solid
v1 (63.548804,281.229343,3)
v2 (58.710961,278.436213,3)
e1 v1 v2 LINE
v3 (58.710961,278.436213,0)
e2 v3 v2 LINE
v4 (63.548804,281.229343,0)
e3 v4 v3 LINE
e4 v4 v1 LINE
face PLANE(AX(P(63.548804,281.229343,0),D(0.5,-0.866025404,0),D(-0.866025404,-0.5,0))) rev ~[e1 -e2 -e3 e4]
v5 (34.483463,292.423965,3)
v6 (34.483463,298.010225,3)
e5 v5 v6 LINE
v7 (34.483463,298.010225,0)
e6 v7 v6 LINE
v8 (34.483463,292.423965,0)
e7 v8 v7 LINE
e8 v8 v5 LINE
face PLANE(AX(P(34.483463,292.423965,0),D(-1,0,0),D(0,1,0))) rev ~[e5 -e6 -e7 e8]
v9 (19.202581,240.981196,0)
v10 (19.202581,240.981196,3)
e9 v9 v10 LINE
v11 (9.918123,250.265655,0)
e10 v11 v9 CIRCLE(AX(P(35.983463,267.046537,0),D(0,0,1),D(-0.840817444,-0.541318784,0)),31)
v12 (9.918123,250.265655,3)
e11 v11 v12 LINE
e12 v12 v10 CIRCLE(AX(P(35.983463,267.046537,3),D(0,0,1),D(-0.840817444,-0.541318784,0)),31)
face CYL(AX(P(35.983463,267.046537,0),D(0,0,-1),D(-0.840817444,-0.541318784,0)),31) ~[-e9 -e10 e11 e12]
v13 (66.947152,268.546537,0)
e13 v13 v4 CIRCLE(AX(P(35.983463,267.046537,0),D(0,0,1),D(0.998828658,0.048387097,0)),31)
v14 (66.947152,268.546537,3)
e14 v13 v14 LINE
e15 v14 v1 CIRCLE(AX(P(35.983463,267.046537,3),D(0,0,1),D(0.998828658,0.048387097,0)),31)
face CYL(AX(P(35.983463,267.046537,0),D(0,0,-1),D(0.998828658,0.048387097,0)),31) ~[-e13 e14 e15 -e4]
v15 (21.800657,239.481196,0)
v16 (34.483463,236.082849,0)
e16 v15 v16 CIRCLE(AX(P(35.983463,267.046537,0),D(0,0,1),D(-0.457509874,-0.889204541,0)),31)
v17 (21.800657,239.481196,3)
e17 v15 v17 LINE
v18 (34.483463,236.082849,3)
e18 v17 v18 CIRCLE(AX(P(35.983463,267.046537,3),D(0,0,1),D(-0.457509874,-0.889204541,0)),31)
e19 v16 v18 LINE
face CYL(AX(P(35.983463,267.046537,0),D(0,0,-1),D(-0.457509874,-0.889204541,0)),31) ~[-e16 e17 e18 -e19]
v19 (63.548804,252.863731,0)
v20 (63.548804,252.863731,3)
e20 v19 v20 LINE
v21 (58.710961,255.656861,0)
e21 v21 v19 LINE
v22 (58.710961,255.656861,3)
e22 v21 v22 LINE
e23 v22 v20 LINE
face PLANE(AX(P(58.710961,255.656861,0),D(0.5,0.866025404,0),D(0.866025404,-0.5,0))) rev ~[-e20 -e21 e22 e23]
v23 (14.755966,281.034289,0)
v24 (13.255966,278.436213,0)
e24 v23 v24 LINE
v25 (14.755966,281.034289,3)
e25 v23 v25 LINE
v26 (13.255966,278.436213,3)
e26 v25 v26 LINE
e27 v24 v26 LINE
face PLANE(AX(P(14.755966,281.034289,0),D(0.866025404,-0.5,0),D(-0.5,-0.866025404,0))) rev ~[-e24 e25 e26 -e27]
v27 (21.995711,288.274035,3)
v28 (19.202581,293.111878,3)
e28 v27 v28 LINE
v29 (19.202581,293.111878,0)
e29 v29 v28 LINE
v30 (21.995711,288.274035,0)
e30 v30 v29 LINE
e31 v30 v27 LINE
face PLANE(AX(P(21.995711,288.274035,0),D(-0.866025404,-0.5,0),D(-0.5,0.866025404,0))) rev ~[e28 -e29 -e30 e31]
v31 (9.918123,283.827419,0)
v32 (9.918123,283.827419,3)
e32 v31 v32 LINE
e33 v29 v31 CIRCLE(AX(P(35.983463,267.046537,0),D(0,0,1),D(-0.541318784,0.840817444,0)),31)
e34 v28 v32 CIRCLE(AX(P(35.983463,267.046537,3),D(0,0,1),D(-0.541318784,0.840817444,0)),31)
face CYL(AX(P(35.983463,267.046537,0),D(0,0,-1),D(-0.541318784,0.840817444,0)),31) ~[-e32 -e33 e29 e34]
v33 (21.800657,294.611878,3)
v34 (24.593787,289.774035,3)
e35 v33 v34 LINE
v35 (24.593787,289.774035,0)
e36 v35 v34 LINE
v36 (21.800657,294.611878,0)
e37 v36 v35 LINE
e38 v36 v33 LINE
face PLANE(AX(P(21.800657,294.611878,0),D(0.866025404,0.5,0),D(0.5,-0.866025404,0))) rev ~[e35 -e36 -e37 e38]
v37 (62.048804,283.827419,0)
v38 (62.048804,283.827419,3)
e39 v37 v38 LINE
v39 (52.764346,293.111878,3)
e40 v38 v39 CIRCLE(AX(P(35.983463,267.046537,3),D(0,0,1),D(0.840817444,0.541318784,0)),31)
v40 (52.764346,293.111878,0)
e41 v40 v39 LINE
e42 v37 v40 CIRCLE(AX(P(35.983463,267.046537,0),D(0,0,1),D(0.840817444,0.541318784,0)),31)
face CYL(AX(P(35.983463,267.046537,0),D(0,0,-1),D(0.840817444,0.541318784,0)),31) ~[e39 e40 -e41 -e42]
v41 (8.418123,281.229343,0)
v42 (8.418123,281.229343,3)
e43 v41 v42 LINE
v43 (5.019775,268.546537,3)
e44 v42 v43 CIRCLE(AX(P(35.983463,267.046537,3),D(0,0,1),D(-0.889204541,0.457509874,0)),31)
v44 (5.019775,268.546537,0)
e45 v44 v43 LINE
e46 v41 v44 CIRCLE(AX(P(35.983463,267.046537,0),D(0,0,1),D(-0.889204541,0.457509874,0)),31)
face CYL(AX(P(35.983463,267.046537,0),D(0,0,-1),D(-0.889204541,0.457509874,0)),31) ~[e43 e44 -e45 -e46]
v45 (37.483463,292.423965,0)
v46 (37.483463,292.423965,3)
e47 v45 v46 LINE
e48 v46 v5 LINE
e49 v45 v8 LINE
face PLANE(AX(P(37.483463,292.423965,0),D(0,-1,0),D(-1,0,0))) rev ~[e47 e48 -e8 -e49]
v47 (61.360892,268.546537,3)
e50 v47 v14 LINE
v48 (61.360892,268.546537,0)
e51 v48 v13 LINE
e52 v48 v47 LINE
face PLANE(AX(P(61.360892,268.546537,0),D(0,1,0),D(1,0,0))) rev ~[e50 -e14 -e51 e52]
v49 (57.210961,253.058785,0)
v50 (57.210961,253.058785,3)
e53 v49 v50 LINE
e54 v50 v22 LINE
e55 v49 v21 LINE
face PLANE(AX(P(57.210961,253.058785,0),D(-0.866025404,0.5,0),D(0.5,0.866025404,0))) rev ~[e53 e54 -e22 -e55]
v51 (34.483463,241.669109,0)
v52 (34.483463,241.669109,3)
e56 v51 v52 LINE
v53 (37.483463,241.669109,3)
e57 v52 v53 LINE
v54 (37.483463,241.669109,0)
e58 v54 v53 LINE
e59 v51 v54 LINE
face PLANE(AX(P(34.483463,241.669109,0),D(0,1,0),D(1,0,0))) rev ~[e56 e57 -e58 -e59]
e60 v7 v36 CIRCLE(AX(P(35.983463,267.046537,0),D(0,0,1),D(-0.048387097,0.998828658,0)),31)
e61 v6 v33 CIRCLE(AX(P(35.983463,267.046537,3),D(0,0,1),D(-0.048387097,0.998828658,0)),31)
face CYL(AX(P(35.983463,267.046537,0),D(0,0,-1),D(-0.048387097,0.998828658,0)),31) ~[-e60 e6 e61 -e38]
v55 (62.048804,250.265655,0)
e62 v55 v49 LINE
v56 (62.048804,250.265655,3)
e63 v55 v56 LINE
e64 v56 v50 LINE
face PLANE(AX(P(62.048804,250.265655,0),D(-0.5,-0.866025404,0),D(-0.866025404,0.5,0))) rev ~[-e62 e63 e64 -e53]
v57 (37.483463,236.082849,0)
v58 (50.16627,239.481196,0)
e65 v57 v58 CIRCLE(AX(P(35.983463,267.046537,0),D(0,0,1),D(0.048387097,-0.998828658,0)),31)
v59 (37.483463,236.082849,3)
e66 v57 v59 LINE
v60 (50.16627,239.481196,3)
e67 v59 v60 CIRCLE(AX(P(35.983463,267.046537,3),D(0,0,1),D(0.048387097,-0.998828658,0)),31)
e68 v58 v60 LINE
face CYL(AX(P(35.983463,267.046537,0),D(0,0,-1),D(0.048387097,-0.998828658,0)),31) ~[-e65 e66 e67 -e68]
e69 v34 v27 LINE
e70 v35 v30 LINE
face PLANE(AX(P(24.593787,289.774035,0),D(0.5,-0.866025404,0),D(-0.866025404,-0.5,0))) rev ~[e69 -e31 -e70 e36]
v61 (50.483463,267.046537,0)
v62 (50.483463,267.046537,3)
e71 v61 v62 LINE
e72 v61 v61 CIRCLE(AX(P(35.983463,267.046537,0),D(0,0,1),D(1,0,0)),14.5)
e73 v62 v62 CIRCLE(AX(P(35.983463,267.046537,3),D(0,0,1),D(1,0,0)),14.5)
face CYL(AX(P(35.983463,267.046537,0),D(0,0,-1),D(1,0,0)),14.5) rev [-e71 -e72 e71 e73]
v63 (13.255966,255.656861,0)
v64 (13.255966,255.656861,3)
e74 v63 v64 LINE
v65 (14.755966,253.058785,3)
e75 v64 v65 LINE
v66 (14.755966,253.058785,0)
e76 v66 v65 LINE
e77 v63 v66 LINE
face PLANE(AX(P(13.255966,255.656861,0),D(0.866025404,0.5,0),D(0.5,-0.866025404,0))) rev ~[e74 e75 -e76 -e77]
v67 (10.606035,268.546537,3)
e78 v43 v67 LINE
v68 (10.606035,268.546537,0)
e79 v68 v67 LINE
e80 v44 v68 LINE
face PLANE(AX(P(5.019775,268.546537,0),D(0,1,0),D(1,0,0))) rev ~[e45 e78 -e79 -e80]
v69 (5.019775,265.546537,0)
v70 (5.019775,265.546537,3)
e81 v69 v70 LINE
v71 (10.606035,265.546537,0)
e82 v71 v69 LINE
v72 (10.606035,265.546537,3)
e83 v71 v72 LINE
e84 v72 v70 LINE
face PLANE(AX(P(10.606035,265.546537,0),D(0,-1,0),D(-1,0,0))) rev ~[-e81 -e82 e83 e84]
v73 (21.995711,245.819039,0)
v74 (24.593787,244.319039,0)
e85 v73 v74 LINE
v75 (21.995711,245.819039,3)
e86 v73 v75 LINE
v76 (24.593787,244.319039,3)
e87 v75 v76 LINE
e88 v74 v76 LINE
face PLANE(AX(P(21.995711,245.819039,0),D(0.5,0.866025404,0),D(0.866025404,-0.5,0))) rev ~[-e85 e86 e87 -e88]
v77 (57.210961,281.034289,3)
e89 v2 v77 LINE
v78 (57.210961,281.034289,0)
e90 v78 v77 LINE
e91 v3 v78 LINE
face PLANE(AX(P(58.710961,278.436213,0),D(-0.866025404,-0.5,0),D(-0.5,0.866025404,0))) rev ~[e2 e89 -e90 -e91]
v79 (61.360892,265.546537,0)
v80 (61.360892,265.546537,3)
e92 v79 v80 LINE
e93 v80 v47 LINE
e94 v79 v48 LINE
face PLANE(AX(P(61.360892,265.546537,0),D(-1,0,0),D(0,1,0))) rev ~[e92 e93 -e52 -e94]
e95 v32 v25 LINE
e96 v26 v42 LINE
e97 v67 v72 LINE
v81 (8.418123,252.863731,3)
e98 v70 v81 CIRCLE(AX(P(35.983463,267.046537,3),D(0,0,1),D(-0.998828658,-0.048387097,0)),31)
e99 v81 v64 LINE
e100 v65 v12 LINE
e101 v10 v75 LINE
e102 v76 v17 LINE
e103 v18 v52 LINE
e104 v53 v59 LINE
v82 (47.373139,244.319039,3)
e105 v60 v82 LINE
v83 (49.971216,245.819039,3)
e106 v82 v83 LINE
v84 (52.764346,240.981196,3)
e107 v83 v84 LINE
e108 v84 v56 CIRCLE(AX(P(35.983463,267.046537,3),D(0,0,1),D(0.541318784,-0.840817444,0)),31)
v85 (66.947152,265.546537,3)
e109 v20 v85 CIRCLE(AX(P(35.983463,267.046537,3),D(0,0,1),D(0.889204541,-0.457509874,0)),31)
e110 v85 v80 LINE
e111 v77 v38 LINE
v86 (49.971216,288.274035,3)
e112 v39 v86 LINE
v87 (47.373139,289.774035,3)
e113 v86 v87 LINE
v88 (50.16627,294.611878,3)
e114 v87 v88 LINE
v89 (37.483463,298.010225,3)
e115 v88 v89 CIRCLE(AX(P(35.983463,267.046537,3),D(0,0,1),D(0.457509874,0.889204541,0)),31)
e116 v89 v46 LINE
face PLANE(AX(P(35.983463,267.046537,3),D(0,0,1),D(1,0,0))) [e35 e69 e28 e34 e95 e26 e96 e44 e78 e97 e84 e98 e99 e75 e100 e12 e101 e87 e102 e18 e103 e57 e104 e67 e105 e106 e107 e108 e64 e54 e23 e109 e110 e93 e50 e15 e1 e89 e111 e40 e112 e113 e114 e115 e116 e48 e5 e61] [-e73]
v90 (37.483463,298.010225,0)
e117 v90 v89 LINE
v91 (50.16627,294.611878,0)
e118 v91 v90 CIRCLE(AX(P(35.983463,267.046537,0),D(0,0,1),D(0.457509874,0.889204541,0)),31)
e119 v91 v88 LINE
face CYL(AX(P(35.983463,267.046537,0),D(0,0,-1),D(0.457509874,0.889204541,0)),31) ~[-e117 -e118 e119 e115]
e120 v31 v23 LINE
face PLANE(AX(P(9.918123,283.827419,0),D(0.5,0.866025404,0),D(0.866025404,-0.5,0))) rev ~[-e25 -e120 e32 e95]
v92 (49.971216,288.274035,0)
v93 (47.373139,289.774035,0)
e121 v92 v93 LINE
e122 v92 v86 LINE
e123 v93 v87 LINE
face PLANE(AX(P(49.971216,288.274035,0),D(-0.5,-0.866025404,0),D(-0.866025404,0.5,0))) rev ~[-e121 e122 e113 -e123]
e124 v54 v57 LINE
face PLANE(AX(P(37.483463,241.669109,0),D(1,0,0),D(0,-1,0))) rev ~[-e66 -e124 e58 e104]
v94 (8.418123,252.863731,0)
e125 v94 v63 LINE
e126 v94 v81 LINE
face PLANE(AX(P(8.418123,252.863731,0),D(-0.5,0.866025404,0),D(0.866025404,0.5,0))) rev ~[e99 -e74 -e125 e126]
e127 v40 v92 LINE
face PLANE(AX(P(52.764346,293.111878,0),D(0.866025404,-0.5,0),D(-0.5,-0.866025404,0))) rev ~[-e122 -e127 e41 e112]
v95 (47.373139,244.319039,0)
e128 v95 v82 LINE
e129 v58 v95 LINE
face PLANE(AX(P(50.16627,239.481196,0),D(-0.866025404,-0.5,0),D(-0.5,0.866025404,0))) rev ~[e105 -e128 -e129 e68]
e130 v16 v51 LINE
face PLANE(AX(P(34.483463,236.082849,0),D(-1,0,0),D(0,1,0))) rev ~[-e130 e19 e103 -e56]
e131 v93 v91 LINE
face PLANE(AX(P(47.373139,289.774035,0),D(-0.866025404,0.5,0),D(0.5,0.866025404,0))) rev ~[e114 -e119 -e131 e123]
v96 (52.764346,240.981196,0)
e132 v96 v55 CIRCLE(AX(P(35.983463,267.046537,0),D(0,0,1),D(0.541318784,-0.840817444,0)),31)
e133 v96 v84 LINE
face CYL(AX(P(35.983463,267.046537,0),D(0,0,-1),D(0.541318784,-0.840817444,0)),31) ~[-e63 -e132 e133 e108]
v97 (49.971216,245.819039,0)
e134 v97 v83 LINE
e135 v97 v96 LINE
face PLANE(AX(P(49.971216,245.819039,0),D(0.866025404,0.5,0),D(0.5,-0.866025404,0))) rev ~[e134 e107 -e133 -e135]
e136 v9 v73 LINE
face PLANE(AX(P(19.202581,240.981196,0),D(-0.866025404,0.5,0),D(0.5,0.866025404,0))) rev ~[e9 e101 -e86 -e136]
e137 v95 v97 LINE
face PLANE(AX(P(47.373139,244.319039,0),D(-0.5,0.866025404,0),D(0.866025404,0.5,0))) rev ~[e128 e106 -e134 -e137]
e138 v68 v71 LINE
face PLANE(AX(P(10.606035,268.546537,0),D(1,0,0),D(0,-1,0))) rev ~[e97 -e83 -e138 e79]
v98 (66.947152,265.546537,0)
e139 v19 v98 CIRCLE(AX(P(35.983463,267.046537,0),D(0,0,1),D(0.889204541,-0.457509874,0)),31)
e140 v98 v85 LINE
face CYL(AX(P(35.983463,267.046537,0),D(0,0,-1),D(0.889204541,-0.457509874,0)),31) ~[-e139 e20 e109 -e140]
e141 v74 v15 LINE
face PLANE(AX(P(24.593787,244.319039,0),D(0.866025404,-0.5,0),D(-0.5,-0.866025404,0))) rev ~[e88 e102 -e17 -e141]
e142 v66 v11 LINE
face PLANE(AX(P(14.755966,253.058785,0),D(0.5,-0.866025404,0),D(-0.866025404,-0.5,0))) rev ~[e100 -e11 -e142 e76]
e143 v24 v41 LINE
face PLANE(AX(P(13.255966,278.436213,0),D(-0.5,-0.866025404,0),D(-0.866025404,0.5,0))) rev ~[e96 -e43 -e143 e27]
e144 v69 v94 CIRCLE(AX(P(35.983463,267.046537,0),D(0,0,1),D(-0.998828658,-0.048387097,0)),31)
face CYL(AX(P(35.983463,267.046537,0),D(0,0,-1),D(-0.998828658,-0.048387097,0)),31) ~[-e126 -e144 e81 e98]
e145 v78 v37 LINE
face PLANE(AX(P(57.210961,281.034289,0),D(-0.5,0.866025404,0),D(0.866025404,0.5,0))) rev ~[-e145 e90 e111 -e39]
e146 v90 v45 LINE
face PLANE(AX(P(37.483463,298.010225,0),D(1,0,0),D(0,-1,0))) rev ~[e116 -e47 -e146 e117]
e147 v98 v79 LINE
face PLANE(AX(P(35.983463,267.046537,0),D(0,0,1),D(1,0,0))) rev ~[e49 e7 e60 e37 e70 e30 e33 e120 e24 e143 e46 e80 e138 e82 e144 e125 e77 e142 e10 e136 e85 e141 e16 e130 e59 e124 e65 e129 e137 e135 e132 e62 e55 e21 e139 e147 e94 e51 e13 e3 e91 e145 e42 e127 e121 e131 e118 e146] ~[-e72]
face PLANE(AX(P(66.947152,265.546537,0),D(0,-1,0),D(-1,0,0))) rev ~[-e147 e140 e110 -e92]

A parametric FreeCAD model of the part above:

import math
import FreeCAD as App
import Part
import Sketcher

V = App.Vector
Q = App.Units.Quantity

doc = App.newDocument("Part")
body = doc.addObject("PartDesign::Body", "Body")

sketch1 = body.newObject("Sketcher::SketchObject", "Sketch")
sketch1.AttachmentSupport = (doc.getObject("XY_Plane"), [""])
sketch1.MapMode = "FlatFace"
sketch1.addGeometry([
    Part.LineSegment(V(47.4, 289.8, 0), V(50.2, 294.6, 0)),
    Part.ArcOfCircle(Part.Circle(V(36, 267, 0), V(0, 0, 1), 31), math.radians(63), math.radians(87)),
    Part.LineSegment(V(37.5, 298, 0), V(37.5, 292.4, 0)),
    Part.LineSegment(V(37.5, 292.4, 0), V(34.5, 292.4, 0)),
    Part.LineSegment(V(34.5, 292.4, 0), V(34.5, 298, 0)),
    Part.ArcOfCircle(Part.Circle(V(36, 267, 0), V(0, 0, 1), 31), math.radians(93), math.radians(117)),
    Part.LineSegment(V(21.8, 294.6, 0), V(24.6, 289.8, 0)),
    Part.LineSegment(V(24.6, 289.8, 0), V(22, 288.3, 0)),
    Part.LineSegment(V(22, 288.3, 0), V(19.2, 293.1, 0)),
    Part.ArcOfCircle(Part.Circle(V(36, 267, 0), V(0, 0, 1), 31), math.radians(123), math.radians(147)),
    Part.LineSegment(V(9.9, 283.8, 0), V(14.8, 281, 0)),
    Part.LineSegment(V(14.8, 281, 0), V(13.3, 278.4, 0)),
    Part.LineSegment(V(13.3, 278.4, 0), V(8.4, 281.2, 0)),
    Part.ArcOfCircle(Part.Circle(V(36, 267, 0), V(0, 0, 1), 31), math.radians(153), math.radians(177)),
    Part.LineSegment(V(5, 268.5, 0), V(10.6, 268.5, 0)),
    Part.LineSegment(V(10.6, 268.5, 0), V(10.6, 265.5, 0)),
    Part.LineSegment(V(10.6, 265.5, 0), V(5, 265.5, 0)),
    Part.ArcOfCircle(Part.Circle(V(36, 267, 0), V(0, 0, 1), 31), math.radians(-177), math.radians(-153)),
    Part.LineSegment(V(8.4, 252.9, 0), V(13.3, 255.7, 0)),
    Part.LineSegment(V(13.3, 255.7, 0), V(14.8, 253.1, 0)),
    Part.LineSegment(V(14.8, 253.1, 0), V(9.9, 250.3, 0)),
    Part.ArcOfCircle(Part.Circle(V(36, 267, 0), V(0, 0, 1), 31), math.radians(-147), math.radians(-123)),
    Part.LineSegment(V(19.2, 241, 0), V(22, 245.8, 0)),
    Part.LineSegment(V(22, 245.8, 0), V(24.6, 244.3, 0)),
    Part.LineSegment(V(24.6, 244.3, 0), V(21.8, 239.5, 0)),
    Part.ArcOfCircle(Part.Circle(V(36, 267, 0), V(0, 0, 1), 31), math.radians(-117), math.radians(-93)),
    Part.LineSegment(V(34.5, 236.1, 0), V(34.5, 241.7, 0)),
    Part.LineSegment(V(34.5, 241.7, 0), V(37.5, 241.7, 0)),
    Part.LineSegment(V(37.5, 241.7, 0), V(37.5, 236.1, 0)),
    Part.ArcOfCircle(Part.Circle(V(36, 267, 0), V(0, 0, 1), 31), math.radians(-87), math.radians(-63)),
    Part.LineSegment(V(50.2, 239.5, 0), V(47.4, 244.3, 0)),
    Part.LineSegment(V(47.4, 244.3, 0), V(50, 245.8, 0)),
    Part.LineSegment(V(50, 245.8, 0), V(52.8, 241, 0)),
    Part.ArcOfCircle(Part.Circle(V(36, 267, 0), V(0, 0, 1), 31), math.radians(-57), math.radians(-33)),
    Part.LineSegment(V(62, 250.3, 0), V(57.2, 253.1, 0)),
    Part.LineSegment(V(57.2, 253.1, 0), V(58.7, 255.7, 0)),
    Part.LineSegment(V(58.7, 255.7, 0), V(63.5, 252.9, 0)),
    Part.ArcOfCircle(Part.Circle(V(36, 267, 0), V(0, 0, 1), 31), math.radians(-27), math.radians(-3)),
    Part.LineSegment(V(66.9, 265.5, 0), V(61.4, 265.5, 0)),
    Part.LineSegment(V(61.4, 265.5, 0), V(61.4, 268.5, 0)),
    Part.LineSegment(V(61.4, 268.5, 0), V(66.9, 268.5, 0)),
    Part.ArcOfCircle(Part.Circle(V(36, 267, 0), V(0, 0, 1), 31), math.radians(3), math.radians(27)),
    Part.LineSegment(V(63.5, 281.2, 0), V(58.7, 278.4, 0)),
    Part.LineSegment(V(58.7, 278.4, 0), V(57.2, 281, 0)),
    Part.LineSegment(V(57.2, 281, 0), V(62, 283.8, 0)),
    Part.ArcOfCircle(Part.Circle(V(36, 267, 0), V(0, 0, 1), 31), math.radians(33), math.radians(57)),
    Part.LineSegment(V(52.8, 293.1, 0), V(50, 288.3, 0)),
    Part.LineSegment(V(50, 288.3, 0), V(47.4, 289.8, 0)),
    Part.Circle(V(36, 267, 0), V(0, 0, 1), 14.5),
], False)
sketch1.addConstraint([
    Sketcher.Constraint("Coincident", 0, 2, 1, 1),
    Sketcher.Constraint("Coincident", 1, 2, 2, 1),
    Sketcher.Constraint("Coincident", 2, 2, 3, 1),
    Sketcher.Constraint("Coincident", 3, 2, 4, 1),
    Sketcher.Constraint("Coincident", 4, 2, 5, 1),
    Sketcher.Constraint("Coincident", 5, 2, 6, 1),
    Sketcher.Constraint("Coincident", 6, 2, 7, 1),
    Sketcher.Constraint("Coincident", 7, 2, 8, 1),
    Sketcher.Constraint("Coincident", 8, 2, 9, 1),
    Sketcher.Constraint("Coincident", 9, 2, 10, 1),
    Sketcher.Constraint("Coincident", 10, 2, 11, 1),
    Sketcher.Constraint("Coincident", 11, 2, 12, 1),
    Sketcher.Constraint("Coincident", 12, 2, 13, 1),
    Sketcher.Constraint("Coincident", 13, 2, 14, 1),
    Sketcher.Constraint("Coincident", 14, 2, 15, 1),
    Sketcher.Constraint("Coincident", 15, 2, 16, 1),
    Sketcher.Constraint("Coincident", 16, 2, 17, 1),
    Sketcher.Constraint("Coincident", 17, 2, 18, 1),
    Sketcher.Constraint("Coincident", 18, 2, 19, 1),
    Sketcher.Constraint("Coincident", 19, 2, 20, 1),
    Sketcher.Constraint("Coincident", 20, 2, 21, 1),
    Sketcher.Constraint("Coincident", 21, 2, 22, 1),
    Sketcher.Constraint("Coincident", 22, 2, 23, 1),
    Sketcher.Constraint("Coincident", 23, 2, 24, 1),
    Sketcher.Constraint("Coincident", 24, 2, 25, 1),
    Sketcher.Constraint("Coincident", 25, 2, 26, 1),
    Sketcher.Constraint("Coincident", 26, 2, 27, 1),
    Sketcher.Constraint("Coincident", 27, 2, 28, 1),
    Sketcher.Constraint("Coincident", 28, 2, 29, 1),
    Sketcher.Constraint("Coincident", 29, 2, 30, 1),
    Sketcher.Constraint("Coincident", 30, 2, 31, 1),
    Sketcher.Constraint("Coincident", 31, 2, 32, 1),
    Sketcher.Constraint("Coincident", 32, 2, 33, 1),
    Sketcher.Constraint("Coincident", 33, 2, 34, 1),
    Sketcher.Constraint("Coincident", 34, 2, 35, 1),
    Sketcher.Constraint("Coincident", 35, 2, 36, 1),
    Sketcher.Constraint("Coincident", 36, 2, 37, 1),
    Sketcher.Constraint("Coincident", 37, 2, 38, 1),
    Sketcher.Constraint("Coincident", 38, 2, 39, 1),
    Sketcher.Constraint("Coincident", 39, 2, 40, 1),
    Sketcher.Constraint("Coincident", 40, 2, 41, 1),
    Sketcher.Constraint("Coincident", 41, 2, 42, 1),
    Sketcher.Constraint("Coincident", 42, 2, 43, 1),
    Sketcher.Constraint("Coincident", 43, 2, 44, 1),
    Sketcher.Constraint("Coincident", 44, 2, 45, 1),
    Sketcher.Constraint("Coincident", 45, 2, 46, 1),
    Sketcher.Constraint("Coincident", 46, 2, 47, 1),
    Sketcher.Constraint("Coincident", 47, 2, 0, 1),
    Sketcher.Constraint("Vertical", 2),
    Sketcher.Constraint("Horizontal", 3),
    Sketcher.Constraint("Vertical", 4),
    Sketcher.Constraint("Horizontal", 14),
    Sketcher.Constraint("Vertical", 15),
    Sketcher.Constraint("Horizontal", 16),
    Sketcher.Constraint("Vertical", 26),
    Sketcher.Constraint("Horizontal", 27),
    Sketcher.Constraint("Vertical", 28),
    Sketcher.Constraint("Horizontal", 38),
    Sketcher.Constraint("Vertical", 39),
    Sketcher.Constraint("Horizontal", 40),
    Sketcher.Constraint("Coincident", 5, 3, 1, 3),
    Sketcher.Constraint("Coincident", 9, 3, 1, 3),
    Sketcher.Constraint("Coincident", 13, 3, 1, 3),
    Sketcher.Constraint("Coincident", 17, 3, 1, 3),
    Sketcher.Constraint("Coincident", 21, 3, 1, 3),
    Sketcher.Constraint("Coincident", 25, 3, 1, 3),
    Sketcher.Constraint("Coincident", 29, 3, 1, 3),
    Sketcher.Constraint("Coincident", 33, 3, 1, 3),
    Sketcher.Constraint("Coincident", 37, 3, 1, 3),
    Sketcher.Constraint("Coincident", 41, 3, 1, 3),
    Sketcher.Constraint("Coincident", 45, 3, 1, 3),
    Sketcher.Constraint("Coincident", 48, 3, 1, 3),
    Sketcher.Constraint("Equal", 1, 5),
    Sketcher.Constraint("Equal", 5, 9),
    Sketcher.Constraint("Equal", 9, 13),
    Sketcher.Constraint("Equal", 13, 17),
    Sketcher.Constraint("Equal", 17, 21),
    Sketcher.Constraint("Equal", 21, 25),
    Sketcher.Constraint("Equal", 25, 29),
    Sketcher.Constraint("Equal", 29, 33),
    Sketcher.Constraint("Equal", 33, 37),
    Sketcher.Constraint("Equal", 37, 41),
    Sketcher.Constraint("Equal", 41, 45),
    Sketcher.Constraint("Perpendicular", 6, 7),
    Sketcher.Constraint("Perpendicular", 7, 8),
    Sketcher.Constraint("Perpendicular", 0, 10),
    Sketcher.Constraint("Perpendicular", 10, 11),
    Sketcher.Constraint("Perpendicular", 11, 12),
    Sketcher.Constraint("Perpendicular", 8, 18),
    Sketcher.Constraint("Perpendicular", 18, 19),
    Sketcher.Constraint("Perpendicular", 19, 20),
    Sketcher.Constraint("Perpendicular", 12, 22),
    Sketcher.Constraint("Perpendicular", 22, 23),
    Sketcher.Constraint("Perpendicular", 23, 24),
    Sketcher.Constraint("Perpendicular", 20, 30),
    Sketcher.Constraint("Perpendicular", 30, 31),
    Sketcher.Constraint("Perpendicular", 31, 32),
    Sketcher.Constraint("Perpendicular", 24, 34),
    Sketcher.Constraint("Perpendicular", 34, 35),
    Sketcher.Constraint("Perpendicular", 35, 36),
    Sketcher.Constraint("Perpendicular", 32, 42),
    Sketcher.Constraint("Perpendicular", 42, 43),
    Sketcher.Constraint("Perpendicular", 43, 44),
    Sketcher.Constraint("Perpendicular", 36, 46),
    Sketcher.Constraint("Perpendicular", 46, 47),
    Sketcher.Constraint("Horizontal", 1, 2, 4, 2),
    Sketcher.Constraint("Horizontal", 0, 2, 5, 2),
    Sketcher.Constraint("Horizontal", 25, 2, 28, 2),
    Sketcher.Constraint("Horizontal", 24, 2, 29, 2),
    Sketcher.Constraint("Horizontal", 23, 2, 30, 2),
    Sketcher.Constraint("Horizontal", 22, 2, 31, 2),
    Sketcher.Constraint("Horizontal", 21, 2, 32, 2),
    Sketcher.Constraint("Horizontal", 20, 2, 33, 2),
    Sketcher.Constraint("Horizontal", 19, 2, 34, 2),
    Sketcher.Constraint("Horizontal", 18, 2, 35, 2),
    Sketcher.Constraint("Horizontal", 16, 2, 37, 2),
    Sketcher.Constraint("Horizontal", 14, 2, 39, 2),
    Sketcher.Constraint("Horizontal", 12, 2, 41, 2),
    Sketcher.Constraint("Horizontal", 11, 2, 42, 2),
    Sketcher.Constraint("Horizontal", 10, 2, 43, 2),
    Sketcher.Constraint("Horizontal", 8, 2, 45, 2),
    Sketcher.Constraint("Horizontal", 7, 2, 46, 2),
    Sketcher.Constraint("Vertical", 13, 2, 16, 2),
    Sketcher.Constraint("Vertical", 12, 2, 17, 2),
    Sketcher.Constraint("Vertical", 11, 2, 18, 2),
    Sketcher.Constraint("Vertical", 10, 2, 19, 2),
    Sketcher.Constraint("Vertical", 8, 2, 21, 2),
    Sketcher.Constraint("Vertical", 7, 2, 22, 2),
    Sketcher.Constraint("Vertical", 6, 2, 23, 2),
    Sketcher.Constraint("Vertical", 4, 2, 25, 2),
    Sketcher.Constraint("Equal", 16, 38),
    Sketcher.Constraint("Equal", 40, 2),
    Sketcher.Constraint("Equal", 27, 15),
    Sketcher.Constraint("Equal", 4, 26),
    Sketcher.Constraint("Equal", 6, 8),
    Sketcher.Constraint("Equal", 8, 10),
    Sketcher.Constraint("Equal", 7, 11),
    Sketcher.Constraint("Equal", 10, 12),
    Sketcher.Constraint("Diameter", 48, 29.0),
    Sketcher.Constraint("Radius", 1, 31.0),
    Sketcher.Constraint("DistanceX", 3, 2, 3, 1, 3.0),
    Sketcher.Constraint("Angle", 0, Q("60 deg")),
    Sketcher.Constraint("Distance", 7, 3.0),
    Sketcher.Constraint("DistanceX", 14, 1, 14, 2, 5.58626),
    Sketcher.Constraint("Distance", 0, 5.58626),
    Sketcher.Constraint("DistanceX", -1, 1, 0, 2, 50.16627),
    Sketcher.Constraint("DistanceY", -1, 1, 9, 2, 283.827419),
])
pad1 = body.newObject("PartDesign::Pad", "Pad")
pad1.Profile = sketch1
pad1.Length = 3

doc.recompute()
